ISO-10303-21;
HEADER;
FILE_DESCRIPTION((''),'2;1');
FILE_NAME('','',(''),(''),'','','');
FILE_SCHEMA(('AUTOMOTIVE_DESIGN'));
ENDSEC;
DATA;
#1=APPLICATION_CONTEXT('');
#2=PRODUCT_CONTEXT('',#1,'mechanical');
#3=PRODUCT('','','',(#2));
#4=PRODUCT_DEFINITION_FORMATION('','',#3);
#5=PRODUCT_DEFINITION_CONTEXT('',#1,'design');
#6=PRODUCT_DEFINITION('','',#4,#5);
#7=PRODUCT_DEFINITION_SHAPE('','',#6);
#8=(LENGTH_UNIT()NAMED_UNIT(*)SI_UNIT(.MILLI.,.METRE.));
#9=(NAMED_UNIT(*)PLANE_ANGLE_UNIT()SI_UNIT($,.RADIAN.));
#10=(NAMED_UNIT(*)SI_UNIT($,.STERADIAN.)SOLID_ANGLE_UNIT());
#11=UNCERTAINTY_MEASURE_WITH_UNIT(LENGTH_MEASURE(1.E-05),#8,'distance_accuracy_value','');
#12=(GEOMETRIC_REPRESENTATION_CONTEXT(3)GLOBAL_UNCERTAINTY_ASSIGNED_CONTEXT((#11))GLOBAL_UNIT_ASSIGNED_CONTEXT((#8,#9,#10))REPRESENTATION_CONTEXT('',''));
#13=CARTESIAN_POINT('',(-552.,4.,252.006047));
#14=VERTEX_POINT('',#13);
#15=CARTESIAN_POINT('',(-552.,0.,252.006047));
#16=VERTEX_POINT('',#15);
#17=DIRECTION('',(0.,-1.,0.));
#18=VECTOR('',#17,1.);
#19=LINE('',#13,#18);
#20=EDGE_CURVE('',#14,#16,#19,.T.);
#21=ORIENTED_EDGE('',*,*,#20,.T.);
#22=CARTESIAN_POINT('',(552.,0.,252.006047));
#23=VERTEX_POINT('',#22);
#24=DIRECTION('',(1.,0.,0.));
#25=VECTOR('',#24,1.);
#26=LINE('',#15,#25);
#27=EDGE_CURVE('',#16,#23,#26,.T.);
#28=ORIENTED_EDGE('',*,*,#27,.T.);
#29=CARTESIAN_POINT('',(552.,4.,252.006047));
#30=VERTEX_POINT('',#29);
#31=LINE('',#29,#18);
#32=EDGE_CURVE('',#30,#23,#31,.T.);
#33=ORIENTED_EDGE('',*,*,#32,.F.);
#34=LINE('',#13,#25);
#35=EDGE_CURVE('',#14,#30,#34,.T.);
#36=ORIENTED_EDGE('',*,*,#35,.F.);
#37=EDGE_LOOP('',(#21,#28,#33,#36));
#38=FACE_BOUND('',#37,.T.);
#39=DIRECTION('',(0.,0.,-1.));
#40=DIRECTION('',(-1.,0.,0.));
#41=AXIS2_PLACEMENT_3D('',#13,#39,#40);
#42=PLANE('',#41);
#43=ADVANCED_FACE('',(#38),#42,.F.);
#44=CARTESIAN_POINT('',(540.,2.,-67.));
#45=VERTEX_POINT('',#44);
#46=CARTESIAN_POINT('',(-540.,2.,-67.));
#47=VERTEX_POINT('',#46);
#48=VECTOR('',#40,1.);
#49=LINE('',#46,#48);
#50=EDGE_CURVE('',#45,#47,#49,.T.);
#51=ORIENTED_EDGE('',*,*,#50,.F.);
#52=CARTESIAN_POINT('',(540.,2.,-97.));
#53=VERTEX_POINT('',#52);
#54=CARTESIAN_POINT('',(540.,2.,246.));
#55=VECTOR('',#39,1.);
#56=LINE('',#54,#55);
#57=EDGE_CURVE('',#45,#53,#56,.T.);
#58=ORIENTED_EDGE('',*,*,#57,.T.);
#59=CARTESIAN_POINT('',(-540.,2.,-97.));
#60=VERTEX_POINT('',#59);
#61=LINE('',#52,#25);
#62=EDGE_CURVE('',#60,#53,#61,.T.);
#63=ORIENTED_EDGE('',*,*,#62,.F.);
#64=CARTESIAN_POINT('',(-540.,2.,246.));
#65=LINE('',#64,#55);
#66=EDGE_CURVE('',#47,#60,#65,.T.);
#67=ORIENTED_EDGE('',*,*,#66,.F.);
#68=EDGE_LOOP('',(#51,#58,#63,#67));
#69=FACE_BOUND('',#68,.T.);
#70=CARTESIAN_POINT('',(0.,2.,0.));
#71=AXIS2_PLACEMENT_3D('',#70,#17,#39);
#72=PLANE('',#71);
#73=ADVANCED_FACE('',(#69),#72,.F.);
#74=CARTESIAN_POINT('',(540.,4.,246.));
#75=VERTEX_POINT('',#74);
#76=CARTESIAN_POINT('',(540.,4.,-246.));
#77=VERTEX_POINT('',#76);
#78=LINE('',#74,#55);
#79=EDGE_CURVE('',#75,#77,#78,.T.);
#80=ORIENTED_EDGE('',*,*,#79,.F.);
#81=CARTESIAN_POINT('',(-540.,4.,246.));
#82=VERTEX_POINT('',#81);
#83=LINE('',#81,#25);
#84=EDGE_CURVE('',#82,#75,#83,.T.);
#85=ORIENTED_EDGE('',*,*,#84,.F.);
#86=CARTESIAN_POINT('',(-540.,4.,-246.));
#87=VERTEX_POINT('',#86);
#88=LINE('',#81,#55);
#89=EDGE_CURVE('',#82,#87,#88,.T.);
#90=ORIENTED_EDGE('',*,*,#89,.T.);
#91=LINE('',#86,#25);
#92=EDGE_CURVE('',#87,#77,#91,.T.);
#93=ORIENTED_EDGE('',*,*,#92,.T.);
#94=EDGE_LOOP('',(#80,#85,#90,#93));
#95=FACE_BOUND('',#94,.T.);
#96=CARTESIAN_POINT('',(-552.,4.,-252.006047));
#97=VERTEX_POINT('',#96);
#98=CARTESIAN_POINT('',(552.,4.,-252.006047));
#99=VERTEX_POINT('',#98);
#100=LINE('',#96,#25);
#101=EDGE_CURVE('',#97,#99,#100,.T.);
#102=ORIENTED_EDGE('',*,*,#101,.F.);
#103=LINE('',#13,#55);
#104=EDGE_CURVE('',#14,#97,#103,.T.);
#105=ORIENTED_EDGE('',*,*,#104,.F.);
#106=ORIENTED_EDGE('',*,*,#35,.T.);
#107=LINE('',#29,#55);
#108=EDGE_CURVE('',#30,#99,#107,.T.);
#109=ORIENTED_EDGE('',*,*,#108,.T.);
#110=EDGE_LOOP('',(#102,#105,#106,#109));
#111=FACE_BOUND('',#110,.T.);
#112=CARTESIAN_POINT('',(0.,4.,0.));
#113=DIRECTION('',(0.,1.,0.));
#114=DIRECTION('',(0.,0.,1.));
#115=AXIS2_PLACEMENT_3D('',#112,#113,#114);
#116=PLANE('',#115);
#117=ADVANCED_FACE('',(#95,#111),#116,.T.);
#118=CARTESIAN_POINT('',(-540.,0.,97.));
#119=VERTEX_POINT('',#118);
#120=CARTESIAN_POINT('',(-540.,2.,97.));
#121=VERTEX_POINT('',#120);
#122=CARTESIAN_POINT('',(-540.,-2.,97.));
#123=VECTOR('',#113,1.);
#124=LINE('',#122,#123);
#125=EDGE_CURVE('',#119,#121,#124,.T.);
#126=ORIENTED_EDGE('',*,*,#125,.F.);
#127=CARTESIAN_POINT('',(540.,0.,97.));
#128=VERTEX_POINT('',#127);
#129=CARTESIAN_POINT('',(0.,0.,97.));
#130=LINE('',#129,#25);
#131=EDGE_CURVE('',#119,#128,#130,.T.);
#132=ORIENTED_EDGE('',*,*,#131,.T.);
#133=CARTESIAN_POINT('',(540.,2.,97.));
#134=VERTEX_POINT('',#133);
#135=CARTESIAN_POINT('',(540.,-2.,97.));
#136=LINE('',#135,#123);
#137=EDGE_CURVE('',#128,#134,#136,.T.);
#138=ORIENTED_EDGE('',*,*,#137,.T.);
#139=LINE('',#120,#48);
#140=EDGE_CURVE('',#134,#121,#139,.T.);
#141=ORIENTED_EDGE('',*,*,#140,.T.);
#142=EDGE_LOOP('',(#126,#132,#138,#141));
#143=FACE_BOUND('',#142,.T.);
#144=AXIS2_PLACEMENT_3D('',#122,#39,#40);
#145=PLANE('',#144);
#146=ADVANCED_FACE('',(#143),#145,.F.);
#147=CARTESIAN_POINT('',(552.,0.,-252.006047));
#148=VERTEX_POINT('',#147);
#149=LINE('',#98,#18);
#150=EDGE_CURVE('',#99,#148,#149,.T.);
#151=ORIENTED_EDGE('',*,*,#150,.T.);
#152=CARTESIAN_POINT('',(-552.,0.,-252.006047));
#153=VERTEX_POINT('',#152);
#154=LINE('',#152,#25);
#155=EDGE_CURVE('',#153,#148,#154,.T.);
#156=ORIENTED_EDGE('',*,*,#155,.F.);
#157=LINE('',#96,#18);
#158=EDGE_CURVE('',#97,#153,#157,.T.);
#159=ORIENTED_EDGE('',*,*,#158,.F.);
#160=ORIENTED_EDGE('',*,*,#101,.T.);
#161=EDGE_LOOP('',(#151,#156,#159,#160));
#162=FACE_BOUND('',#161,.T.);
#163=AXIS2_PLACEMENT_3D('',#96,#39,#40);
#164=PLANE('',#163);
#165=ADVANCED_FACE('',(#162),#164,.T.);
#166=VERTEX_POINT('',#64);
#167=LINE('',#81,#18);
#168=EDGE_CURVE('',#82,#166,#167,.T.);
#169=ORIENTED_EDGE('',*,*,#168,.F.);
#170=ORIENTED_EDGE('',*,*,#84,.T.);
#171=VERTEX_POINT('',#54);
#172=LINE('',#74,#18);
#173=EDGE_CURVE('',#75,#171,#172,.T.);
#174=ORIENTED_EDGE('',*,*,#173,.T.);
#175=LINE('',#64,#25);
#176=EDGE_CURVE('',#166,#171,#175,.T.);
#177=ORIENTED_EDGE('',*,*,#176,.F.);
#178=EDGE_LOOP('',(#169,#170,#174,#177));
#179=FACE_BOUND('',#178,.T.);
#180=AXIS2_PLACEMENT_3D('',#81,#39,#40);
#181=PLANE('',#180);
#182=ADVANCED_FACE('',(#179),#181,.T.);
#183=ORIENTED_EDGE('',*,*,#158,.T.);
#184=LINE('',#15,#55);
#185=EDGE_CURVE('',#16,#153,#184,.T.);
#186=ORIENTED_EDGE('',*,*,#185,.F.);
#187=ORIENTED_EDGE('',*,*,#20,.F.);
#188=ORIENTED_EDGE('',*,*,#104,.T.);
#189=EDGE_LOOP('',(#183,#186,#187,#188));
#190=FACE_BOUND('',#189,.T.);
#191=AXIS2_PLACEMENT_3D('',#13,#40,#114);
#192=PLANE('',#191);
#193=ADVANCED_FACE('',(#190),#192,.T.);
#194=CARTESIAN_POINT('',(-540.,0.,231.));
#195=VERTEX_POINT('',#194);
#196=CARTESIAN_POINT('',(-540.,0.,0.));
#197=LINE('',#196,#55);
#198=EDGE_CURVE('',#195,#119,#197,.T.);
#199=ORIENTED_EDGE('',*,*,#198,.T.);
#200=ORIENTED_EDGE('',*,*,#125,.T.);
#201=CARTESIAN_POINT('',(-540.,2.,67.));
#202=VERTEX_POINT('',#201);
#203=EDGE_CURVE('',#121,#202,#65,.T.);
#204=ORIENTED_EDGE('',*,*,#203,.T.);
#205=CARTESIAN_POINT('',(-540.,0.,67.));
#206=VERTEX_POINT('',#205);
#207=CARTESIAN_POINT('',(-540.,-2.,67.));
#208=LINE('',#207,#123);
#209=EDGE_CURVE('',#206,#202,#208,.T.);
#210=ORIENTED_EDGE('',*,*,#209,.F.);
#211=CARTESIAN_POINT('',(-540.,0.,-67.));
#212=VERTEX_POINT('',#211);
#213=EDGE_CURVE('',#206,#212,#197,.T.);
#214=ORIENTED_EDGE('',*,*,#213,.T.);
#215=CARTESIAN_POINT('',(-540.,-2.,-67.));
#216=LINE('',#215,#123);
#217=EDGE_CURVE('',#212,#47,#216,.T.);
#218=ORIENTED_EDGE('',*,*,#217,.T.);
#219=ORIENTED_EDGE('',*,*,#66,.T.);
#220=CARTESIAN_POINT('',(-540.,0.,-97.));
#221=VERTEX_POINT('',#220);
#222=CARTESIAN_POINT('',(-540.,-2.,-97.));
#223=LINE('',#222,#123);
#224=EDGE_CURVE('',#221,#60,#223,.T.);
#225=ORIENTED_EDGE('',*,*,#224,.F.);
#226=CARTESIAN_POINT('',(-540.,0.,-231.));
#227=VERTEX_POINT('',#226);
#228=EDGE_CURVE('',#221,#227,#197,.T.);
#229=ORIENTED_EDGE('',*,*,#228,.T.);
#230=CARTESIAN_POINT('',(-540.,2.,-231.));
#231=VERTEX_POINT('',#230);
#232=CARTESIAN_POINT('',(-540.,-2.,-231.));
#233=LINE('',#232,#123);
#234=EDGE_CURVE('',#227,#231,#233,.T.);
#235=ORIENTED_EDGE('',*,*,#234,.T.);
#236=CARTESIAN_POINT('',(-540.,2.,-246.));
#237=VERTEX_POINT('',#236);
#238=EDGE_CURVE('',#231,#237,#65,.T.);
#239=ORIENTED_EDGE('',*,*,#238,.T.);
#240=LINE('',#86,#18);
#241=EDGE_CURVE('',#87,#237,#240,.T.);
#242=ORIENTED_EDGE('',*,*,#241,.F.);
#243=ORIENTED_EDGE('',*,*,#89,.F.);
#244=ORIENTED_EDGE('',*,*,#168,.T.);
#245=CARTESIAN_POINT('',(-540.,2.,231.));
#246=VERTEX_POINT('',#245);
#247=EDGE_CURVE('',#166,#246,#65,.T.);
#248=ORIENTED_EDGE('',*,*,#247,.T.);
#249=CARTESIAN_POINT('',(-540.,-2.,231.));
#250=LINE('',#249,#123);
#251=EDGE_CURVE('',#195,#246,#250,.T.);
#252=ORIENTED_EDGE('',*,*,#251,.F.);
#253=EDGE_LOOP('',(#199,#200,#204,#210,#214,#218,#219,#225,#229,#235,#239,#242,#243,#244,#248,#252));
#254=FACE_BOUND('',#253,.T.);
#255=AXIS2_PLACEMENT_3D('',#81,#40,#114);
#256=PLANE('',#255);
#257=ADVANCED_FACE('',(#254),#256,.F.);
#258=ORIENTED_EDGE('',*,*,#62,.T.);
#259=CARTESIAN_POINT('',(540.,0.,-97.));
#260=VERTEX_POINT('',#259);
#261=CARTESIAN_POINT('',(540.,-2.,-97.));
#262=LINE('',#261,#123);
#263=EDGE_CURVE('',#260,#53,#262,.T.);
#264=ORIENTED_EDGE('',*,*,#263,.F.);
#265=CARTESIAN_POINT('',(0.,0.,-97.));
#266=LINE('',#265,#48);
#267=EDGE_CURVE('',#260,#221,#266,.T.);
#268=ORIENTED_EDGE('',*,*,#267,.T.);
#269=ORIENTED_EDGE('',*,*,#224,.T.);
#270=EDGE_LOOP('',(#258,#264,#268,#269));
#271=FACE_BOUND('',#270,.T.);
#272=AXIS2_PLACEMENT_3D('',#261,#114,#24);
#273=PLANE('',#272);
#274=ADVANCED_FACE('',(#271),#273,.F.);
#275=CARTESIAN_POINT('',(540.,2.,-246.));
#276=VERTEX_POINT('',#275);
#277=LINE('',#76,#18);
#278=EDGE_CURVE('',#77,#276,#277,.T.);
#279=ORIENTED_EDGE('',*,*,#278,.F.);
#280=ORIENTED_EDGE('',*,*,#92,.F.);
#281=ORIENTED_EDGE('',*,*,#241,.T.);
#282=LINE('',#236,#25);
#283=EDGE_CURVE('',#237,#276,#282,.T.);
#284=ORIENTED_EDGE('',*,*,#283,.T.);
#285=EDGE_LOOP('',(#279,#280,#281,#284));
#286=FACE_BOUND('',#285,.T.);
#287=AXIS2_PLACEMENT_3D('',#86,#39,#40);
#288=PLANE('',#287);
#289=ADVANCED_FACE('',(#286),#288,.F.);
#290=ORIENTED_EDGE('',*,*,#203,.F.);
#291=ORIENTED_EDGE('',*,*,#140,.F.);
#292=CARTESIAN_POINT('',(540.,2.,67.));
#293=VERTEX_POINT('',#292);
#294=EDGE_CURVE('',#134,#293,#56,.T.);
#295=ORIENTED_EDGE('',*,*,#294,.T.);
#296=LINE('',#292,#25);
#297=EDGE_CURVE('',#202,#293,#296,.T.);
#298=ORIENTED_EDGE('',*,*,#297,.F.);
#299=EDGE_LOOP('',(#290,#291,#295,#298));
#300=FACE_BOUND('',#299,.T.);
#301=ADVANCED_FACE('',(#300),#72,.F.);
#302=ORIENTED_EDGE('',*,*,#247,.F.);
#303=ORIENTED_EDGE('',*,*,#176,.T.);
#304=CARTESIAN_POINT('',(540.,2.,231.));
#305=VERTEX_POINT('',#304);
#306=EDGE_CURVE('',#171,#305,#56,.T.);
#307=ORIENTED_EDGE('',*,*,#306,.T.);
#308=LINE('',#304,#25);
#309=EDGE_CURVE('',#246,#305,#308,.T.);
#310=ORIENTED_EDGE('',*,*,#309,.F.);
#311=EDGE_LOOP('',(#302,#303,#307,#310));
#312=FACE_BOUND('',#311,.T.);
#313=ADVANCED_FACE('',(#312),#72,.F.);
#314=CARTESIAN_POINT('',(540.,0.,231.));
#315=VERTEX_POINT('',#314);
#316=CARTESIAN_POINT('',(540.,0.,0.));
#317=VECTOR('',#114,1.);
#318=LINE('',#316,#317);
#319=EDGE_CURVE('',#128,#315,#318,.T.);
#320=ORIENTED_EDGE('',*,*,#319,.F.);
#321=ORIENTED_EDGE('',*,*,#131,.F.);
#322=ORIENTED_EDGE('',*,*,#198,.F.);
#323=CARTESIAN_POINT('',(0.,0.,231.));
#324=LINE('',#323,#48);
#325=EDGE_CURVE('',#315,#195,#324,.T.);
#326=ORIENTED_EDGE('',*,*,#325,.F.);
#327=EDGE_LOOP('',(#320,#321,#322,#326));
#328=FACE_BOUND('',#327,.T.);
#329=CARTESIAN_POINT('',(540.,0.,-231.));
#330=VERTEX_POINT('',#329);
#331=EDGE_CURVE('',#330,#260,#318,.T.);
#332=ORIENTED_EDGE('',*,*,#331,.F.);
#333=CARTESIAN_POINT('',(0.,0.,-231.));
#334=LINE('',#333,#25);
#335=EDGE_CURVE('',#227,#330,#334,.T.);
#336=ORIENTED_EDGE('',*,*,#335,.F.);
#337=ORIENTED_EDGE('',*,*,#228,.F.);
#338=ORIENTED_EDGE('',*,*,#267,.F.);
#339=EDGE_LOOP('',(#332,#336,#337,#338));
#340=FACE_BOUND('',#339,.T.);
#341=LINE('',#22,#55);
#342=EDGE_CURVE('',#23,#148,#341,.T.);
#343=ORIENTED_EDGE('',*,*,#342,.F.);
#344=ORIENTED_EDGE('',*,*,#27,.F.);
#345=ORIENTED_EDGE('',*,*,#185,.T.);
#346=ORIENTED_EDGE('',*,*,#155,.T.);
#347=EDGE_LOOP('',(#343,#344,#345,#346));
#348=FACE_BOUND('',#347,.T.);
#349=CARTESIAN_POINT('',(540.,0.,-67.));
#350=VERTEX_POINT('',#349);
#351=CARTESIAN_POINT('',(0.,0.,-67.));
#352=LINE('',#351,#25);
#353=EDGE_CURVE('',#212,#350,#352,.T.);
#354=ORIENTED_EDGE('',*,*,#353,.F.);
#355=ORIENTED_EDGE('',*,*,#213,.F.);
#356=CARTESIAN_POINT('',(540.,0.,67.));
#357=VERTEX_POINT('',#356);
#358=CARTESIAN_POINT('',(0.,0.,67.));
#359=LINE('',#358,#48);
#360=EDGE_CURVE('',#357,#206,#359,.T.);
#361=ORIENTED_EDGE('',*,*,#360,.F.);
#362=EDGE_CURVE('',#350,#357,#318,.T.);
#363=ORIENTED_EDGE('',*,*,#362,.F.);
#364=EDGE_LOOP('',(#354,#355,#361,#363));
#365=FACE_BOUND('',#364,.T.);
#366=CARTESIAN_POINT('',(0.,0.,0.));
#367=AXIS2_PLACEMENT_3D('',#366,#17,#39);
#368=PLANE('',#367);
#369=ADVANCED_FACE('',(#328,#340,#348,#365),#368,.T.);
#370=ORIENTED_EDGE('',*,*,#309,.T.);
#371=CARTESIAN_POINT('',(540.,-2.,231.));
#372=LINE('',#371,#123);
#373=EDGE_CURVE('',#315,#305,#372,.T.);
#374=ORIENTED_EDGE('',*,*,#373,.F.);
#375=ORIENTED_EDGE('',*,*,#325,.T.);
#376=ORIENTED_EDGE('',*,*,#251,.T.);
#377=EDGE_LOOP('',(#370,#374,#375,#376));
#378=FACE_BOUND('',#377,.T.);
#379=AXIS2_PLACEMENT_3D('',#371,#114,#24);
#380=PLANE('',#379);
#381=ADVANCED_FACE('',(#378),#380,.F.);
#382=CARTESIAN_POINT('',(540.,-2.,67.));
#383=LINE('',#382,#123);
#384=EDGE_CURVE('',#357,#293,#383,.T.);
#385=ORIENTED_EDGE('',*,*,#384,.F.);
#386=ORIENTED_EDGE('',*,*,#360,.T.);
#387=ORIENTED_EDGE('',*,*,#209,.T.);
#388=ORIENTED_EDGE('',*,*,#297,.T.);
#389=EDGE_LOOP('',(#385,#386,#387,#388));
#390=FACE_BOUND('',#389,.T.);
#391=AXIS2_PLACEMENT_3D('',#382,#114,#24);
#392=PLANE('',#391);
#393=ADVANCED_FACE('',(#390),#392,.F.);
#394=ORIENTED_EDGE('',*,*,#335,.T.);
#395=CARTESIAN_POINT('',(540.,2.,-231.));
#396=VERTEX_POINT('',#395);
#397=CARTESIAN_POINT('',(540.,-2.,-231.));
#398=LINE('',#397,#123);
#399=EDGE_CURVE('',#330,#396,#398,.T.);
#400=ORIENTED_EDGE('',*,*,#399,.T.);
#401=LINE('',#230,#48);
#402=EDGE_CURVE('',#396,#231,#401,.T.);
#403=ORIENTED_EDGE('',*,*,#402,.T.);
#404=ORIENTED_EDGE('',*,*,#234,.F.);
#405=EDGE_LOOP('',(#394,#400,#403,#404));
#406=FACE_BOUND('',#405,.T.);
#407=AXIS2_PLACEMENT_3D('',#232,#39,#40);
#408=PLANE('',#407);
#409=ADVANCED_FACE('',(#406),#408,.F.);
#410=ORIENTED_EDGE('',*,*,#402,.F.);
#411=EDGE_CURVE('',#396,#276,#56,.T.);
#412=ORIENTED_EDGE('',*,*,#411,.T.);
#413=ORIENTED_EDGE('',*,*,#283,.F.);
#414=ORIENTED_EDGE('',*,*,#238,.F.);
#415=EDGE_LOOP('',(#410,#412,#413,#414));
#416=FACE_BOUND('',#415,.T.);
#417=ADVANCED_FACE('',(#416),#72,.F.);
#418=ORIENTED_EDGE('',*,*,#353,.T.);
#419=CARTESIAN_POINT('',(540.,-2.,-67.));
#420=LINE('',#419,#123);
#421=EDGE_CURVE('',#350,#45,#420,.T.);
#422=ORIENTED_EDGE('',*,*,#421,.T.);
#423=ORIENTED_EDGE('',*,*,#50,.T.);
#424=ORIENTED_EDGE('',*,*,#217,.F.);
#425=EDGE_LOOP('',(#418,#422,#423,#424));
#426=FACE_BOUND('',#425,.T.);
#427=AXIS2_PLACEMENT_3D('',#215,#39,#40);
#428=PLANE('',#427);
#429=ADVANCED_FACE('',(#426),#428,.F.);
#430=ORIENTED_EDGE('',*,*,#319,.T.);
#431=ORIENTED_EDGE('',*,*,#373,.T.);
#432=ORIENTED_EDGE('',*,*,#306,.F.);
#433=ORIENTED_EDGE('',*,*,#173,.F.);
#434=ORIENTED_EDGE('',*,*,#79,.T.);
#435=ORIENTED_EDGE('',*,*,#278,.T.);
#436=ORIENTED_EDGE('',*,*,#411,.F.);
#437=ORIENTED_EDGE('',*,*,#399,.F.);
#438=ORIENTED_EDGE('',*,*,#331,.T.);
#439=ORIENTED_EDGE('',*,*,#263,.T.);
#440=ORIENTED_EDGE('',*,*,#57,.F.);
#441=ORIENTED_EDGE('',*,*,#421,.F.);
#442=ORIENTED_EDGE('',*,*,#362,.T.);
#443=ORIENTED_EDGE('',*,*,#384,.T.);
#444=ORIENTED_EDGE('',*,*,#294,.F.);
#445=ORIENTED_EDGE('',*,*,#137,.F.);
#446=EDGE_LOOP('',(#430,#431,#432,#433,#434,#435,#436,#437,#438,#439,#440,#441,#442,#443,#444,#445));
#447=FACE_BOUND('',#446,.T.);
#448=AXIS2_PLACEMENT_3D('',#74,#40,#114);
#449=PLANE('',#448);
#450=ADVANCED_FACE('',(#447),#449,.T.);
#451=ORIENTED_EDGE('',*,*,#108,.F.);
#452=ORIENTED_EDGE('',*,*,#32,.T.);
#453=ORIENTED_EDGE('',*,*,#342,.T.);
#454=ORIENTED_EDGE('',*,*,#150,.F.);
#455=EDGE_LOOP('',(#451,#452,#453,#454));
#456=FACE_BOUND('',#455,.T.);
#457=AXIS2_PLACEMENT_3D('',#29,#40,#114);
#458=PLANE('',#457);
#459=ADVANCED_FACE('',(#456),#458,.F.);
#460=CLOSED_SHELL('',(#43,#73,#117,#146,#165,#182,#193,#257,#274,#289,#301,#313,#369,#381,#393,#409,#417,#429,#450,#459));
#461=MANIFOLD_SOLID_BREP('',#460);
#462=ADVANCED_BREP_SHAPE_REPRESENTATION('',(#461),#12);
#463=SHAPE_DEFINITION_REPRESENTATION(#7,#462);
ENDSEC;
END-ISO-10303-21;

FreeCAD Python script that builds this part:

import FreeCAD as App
import Part
import Sketcher

doc = App.newDocument("Part")
body = doc.addObject("PartDesign::Body", "Body")

# Sketch on XZ plane
sketch1 = body.newObject("Sketcher::SketchObject", "Sketch")
sketch1.AttachmentSupport = (doc.getObject("XZ_Plane"), [""])
sketch1.MapMode = "FlatFace"
sketch1.addGeometry([
    Part.LineSegment(App.Vector(-540, -246, 0), App.Vector(-540, 246, 0)),
    Part.LineSegment(App.Vector(-540, 246, 0), App.Vector(540, 246, 0)),
    Part.LineSegment(App.Vector(540, 246, 0), App.Vector(540, -246, 0)),
    Part.LineSegment(App.Vector(540, -246, 0), App.Vector(-540, -246, 0)),
], False)
sketch1.addConstraint([
    Sketcher.Constraint("Coincident", 0, 2, 1, 1),
    Sketcher.Constraint("Coincident", 1, 2, 2, 1),
    Sketcher.Constraint("Coincident", 2, 2, 3, 1),
    Sketcher.Constraint("Coincident", 3, 2, 0, 1),
    Sketcher.Constraint("Vertical", 0),
    Sketcher.Constraint("Horizontal", 1),
    Sketcher.Constraint("Vertical", 2),
    Sketcher.Constraint("Horizontal", 3),
    Sketcher.Constraint("Symmetric", 0, 2, 2, 2, -1, 1),
    Sketcher.Constraint("DistanceX", 1, 1, 1, 2, 1080.0),
    Sketcher.Constraint("DistanceY", 0, 1, 0, 2, 492.0),
])
pad1 = body.newObject("PartDesign::Pad", "Pad")
pad1.Profile = sketch1
pad1.Length = 2
pad1.Reversed = True

# Sketch on XZ plane
sketch2 = body.newObject("Sketcher::SketchObject", "Sketch001")
sketch2.AttachmentSupport = (doc.getObject("XZ_Plane"), [""])
sketch2.MapMode = "FlatFace"
sketch2.addGeometry([
    Part.LineSegment(App.Vector(-552, -252, 0), App.Vector(-552, 252, 0)),  # 0
    Part.LineSegment(App.Vector(-552, 252, 0), App.Vector(552, 252, 0)),  # 1
    Part.LineSegment(App.Vector(552, 252, 0), App.Vector(552, -252, 0)),  # 2
    Part.LineSegment(App.Vector(552, -252, 0), App.Vector(-552, -252, 0)),  # 3
    Part.LineSegment(App.Vector(540, 246, 0), App.Vector(-540, 246, 0)),  # 4
    Part.LineSegment(App.Vector(-540, 246, 0), App.Vector(-540, -246, 0)),  # 5
    Part.LineSegment(App.Vector(-540, -246, 0), App.Vector(540, -246, 0)),  # 6
    Part.LineSegment(App.Vector(540, -246, 0), App.Vector(540, 246, 0)),  # 7
], False)
sketch2.addConstraint([
    Sketcher.Constraint("Coincident", 0, 2, 1, 1),
    Sketcher.Constraint("Coincident", 1, 2, 2, 1),
    Sketcher.Constraint("Coincident", 2, 2, 3, 1),
    Sketcher.Constraint("Coincident", 3, 2, 0, 1),
    Sketcher.Constraint("Coincident", 4, 2, 5, 1),
    Sketcher.Constraint("Coincident", 5, 2, 6, 1),
    Sketcher.Constraint("Coincident", 6, 2, 7, 1),
    Sketcher.Constraint("Coincident", 7, 2, 4, 1),
    Sketcher.Constraint("Vertical", 0),
    Sketcher.Constraint("Horizontal", 1),
    Sketcher.Constraint("Vertical", 2),
    Sketcher.Constraint("Horizontal", 3),
    Sketcher.Constraint("Horizontal", 4),
    Sketcher.Constraint("Vertical", 5),
    Sketcher.Constraint("Horizontal", 6),
    Sketcher.Constraint("Vertical", 7),
    Sketcher.Constraint("Symmetric", 0, 2, 2, 2, -1, 1),
    Sketcher.Constraint("Symmetric", 4, 2, 6, 2, -1, 1),
    Sketcher.Constraint("DistanceX", 1, 1, 1, 2, 1104.0),
    Sketcher.Constraint("DistanceX", 4, 2, 4, 1, 1080.0),
    Sketcher.Constraint("DistanceY", 5, 2, 5, 1, 492.0),
    Sketcher.Constraint("DistanceY", 0, 1, 0, 2, 504.012093),
])
pad2 = body.newObject("PartDesign::Pad", "Pad001")
pad2.Profile = sketch2
pad2.Length = 4
pad2.Reversed = True

# Sketch on XZ plane
sketch3 = body.newObject("Sketcher::SketchObject", "Sketch002")
sketch3.AttachmentSupport = (doc.getObject("XZ_Plane"), [""])
sketch3.MapMode = "FlatFace"
sketch3.AttachmentOffset = App.Placement(App.Vector(0, 0, -2), App.Rotation())
sketch3.addGeometry([
    Part.LineSegment(App.Vector(-540, -231, 0), App.Vector(-540, -97, 0)),
    Part.LineSegment(App.Vector(-540, -97, 0), App.Vector(540, -97, 0)),
    Part.LineSegment(App.Vector(540, -97, 0), App.Vector(540, -231, 0)),
    Part.LineSegment(App.Vector(540, -231, 0), App.Vector(-540, -231, 0)),
], False)
sketch3.addConstraint([
    Sketcher.Constraint("Coincident", 0, 2, 1, 1),
    Sketcher.Constraint("Coincident", 1, 2, 2, 1),
    Sketcher.Constraint("Coincident", 2, 2, 3, 1),
    Sketcher.Constraint("Coincident", 3, 2, 0, 1),
    Sketcher.Constraint("Vertical", 0),
    Sketcher.Constraint("Horizontal", 1),
    Sketcher.Constraint("Vertical", 2),
    Sketcher.Constraint("Horizontal", 3),
    Sketcher.Constraint("DistanceX", 1, 1, 1, 2, 1080.0),
    Sketcher.Constraint("DistanceY", 0, 1, 0, 2, 134.0),
    Sketcher.Constraint("DistanceX", 0, 2, -1, 1, 540.0),
    Sketcher.Constraint("DistanceY", 0, 2, -1, 1, 97.0),
])
pocket1 = body.newObject("PartDesign::Pocket", "Pocket")
pocket1.Profile = sketch3
pocket1.Length = 4
pocket1.Reversed = True
doc.recompute()

linearpattern = body.newObject("PartDesign::LinearPattern", "LinearPattern")
linearpattern.Originals = [pocket1]
linearpattern.Direction = (doc.getObject("Z_Axis"), [""])
linearpattern.Mode = "offset"
linearpattern.Offset = 164
linearpattern.Occurrences = 3
body.Tip = linearpattern

doc.recompute()
